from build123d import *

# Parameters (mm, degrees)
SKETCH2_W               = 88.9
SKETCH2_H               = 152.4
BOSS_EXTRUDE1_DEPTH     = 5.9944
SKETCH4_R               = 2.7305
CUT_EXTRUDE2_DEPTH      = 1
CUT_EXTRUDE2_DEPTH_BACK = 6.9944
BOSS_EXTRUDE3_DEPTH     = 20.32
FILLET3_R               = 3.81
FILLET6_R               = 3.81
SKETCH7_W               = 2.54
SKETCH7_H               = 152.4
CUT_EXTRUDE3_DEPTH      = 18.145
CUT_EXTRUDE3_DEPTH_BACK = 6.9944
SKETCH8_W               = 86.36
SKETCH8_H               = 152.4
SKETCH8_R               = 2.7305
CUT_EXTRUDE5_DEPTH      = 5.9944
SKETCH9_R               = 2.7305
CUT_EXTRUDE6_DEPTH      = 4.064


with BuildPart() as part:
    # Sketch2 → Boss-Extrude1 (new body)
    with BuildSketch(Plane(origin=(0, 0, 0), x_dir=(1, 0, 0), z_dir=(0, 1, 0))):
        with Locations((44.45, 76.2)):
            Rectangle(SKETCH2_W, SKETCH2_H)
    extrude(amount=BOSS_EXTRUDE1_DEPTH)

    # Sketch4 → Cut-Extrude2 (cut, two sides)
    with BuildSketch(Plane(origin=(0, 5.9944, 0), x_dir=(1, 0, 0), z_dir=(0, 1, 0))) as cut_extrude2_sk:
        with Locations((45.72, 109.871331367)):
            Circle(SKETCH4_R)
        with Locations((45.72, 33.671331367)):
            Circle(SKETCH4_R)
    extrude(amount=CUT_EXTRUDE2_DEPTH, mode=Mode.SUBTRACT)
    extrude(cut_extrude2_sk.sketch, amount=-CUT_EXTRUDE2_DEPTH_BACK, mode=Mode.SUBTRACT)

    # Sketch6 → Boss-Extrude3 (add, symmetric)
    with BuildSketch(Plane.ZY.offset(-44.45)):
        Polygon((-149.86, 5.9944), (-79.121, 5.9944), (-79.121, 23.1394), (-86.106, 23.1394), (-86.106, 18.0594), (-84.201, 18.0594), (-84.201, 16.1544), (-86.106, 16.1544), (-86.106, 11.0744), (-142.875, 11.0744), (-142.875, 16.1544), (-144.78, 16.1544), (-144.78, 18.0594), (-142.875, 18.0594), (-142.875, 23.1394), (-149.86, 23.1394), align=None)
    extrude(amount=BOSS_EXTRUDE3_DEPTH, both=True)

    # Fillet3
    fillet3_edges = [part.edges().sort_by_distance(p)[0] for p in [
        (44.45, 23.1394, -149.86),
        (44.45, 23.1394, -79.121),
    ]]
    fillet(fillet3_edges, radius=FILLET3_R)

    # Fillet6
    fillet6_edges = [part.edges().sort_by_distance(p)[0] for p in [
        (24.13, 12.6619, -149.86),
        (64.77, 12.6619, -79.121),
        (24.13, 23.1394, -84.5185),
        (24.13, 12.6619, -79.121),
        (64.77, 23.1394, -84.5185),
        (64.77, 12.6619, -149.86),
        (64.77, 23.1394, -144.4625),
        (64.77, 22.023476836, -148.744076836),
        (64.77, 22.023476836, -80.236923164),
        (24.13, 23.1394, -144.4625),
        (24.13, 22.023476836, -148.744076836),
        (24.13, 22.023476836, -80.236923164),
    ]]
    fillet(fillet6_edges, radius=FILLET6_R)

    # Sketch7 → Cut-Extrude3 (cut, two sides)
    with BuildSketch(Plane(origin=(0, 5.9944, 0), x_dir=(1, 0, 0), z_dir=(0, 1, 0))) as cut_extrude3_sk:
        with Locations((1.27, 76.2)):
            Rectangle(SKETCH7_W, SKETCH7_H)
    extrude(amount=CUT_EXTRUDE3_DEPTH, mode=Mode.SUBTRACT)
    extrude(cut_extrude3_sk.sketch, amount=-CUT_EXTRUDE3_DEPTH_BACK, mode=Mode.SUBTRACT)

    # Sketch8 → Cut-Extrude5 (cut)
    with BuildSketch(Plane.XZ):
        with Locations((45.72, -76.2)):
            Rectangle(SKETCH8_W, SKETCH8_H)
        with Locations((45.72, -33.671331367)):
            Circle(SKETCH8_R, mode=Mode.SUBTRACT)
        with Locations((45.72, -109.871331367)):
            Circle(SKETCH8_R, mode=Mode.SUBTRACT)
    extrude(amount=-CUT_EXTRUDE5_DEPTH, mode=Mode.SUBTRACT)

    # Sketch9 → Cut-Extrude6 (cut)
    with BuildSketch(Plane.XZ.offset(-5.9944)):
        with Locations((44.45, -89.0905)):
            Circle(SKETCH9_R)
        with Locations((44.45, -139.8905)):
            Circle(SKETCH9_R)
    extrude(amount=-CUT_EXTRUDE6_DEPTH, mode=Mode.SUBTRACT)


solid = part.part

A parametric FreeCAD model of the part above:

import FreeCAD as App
import Part
import Sketcher
from FreeCAD import Vector
Q = App.Units.Quantity


def edges_at(feature, points):
    """Names of the edges that pass closest to the given points."""
    edges = feature.Shape.Edges
    near = lambda p: min(range(len(edges)), key=lambda i: edges[i].distToShape(Part.Vertex(*p))[0])
    return sorted({f"Edge{near(p) + 1}" for p in points})


def add_polygon(sketch, points):
    """Adds a closed chain of lines whose ends are joined by coincident constraints."""
    first, n = sketch.GeometryCount, len(points)
    for a, b in zip(points, points[1:] + points[:1]):
        sketch.addGeometry(Part.LineSegment(App.Vector(*a, 0), App.Vector(*b, 0)), False)
    for i in range(n):
        sketch.addConstraint(Sketcher.Constraint("Coincident", first + i, 2, first + (i + 1) % n, 1))

doc = App.newDocument("Part")
params = doc.addObject("Spreadsheet::Sheet", "Params")
for row, (alias, value) in enumerate([
    ("sketch1_height", "6 in"),
    ("sketch1_width", "3.5 in"),
    ("pad1_length", "0.236 in"),
    ("sketch2_diameter", "0.215 in"),
    ("sketch3_width", "0.2 in"),
    ("sketch3_width2", "0.675 in"),
    ("sketch3_height", "2.785 in"),
    ("pad2_length", "1.6 in"),
    ("fillet_radius", "0.15 in"),
    ("fillet2_radius", "0.15 in"),
    ("sketch4_height", "6 in"),
    ("sketch4_width", "0.1 in"),
    ("sketch5_height", "6 in"),
    ("sketch5_diameter", "0.215 in"),
    ("sketch5_width", "3.4 in"),
    ("pocket3_length", "0.236 in"),
    ("sketch6_diameter", "0.215 in"),
    ("pocket4_length", "0.16 in"),
], start=1):
    params.set(f"A{row}", alias)
    params.set(f"B{row}", "=" + value)
    params.setAlias(f"B{row}", alias)

body = doc.addObject("PartDesign::Body", "Body")

# Sketch on XZ plane
sketch1 = body.newObject("Sketcher::SketchObject", "Sketch")
sketch1.AttachmentSupport = (doc.getObject("XZ_Plane"), [""])
sketch1.MapMode = "FlatFace"
add_polygon(sketch1, [(0, -152), (0, 0), (89, 0), (89, -152)])  # lines 0-3
sketch1.addConstraint(Sketcher.Constraint("Vertical", 0))
sketch1.addConstraint(Sketcher.Constraint("Horizontal", 1))
sketch1.addConstraint(Sketcher.Constraint("Vertical", 2))
sketch1.addConstraint(Sketcher.Constraint("Horizontal", 3))
sketch1.addConstraint(Sketcher.Constraint("Coincident", 0, 2, -1, 1))
sketch1.addConstraint(Sketcher.Constraint("DistanceY", 0, 1, 0, 2, Q("6 in")))
sketch1.addConstraint(Sketcher.Constraint("DistanceX", 1, 1, 1, 2, Q("3.5 in")))
sketch1.setExpression("Constraints[9]", "Params.sketch1_height")
sketch1.setExpression("Constraints[10]", "Params.sketch1_width")
pad1 = body.newObject("PartDesign::Pad", "Pad")
pad1.Profile = sketch1
pad1.setExpression("Length", "Params.pad1_length")
pad1.Reversed = True

# Sketch on XZ plane
sketch2 = body.newObject("Sketcher::SketchObject", "Sketch001")
sketch2.AttachmentSupport = (doc.getObject("XZ_Plane"), [""])
sketch2.MapMode = "FlatFace"
sketch2.AttachmentOffset = App.Placement(Vector(0, 0, -0.236 * 25.4), App.Rotation())
sketch2.addGeometry(Part.Circle(Vector(45.7, -109.9, 0), Vector(0, 0, 1), 2.7), False)
sketch2.addGeometry(Part.Circle(Vector(45.7, -33.7, 0), Vector(0, 0, 1), 2.7), False)
sketch2.addConstraint(Sketcher.Constraint("Equal", 0, 1))
sketch2.addConstraint(Sketcher.Constraint("Vertical", 0, 3, 1, 3))
sketch2.addConstraint(Sketcher.Constraint("Diameter", 0, Q("0.215 in")))
sketch2.addConstraint(Sketcher.Constraint("DistanceY", 0, 3, 1, 3, Q("3 in")))
sketch2.addConstraint(Sketcher.Constraint("DistanceX", -1, 1, 0, 3, Q("1.8 in")))
sketch2.addConstraint(Sketcher.Constraint("DistanceY", 0, 3, -1, 1, 109.871331))
sketch2.setExpression("Constraints[2]", "Params.sketch2_diameter")
pocket1 = body.newObject("PartDesign::Pocket", "Pocket")
pocket1.Profile = sketch2
pocket1.Type = "ThroughAll"
pocket1.Midplane = True

# Sketch on YZ plane
sketch3 = body.newObject("Sketcher::SketchObject", "Sketch002")
sketch3.AttachmentSupport = (doc.getObject("YZ_Plane"), [""])
sketch3.MapMode = "FlatFace"
sketch3.AttachmentOffset = App.Placement(Vector(0, 0, 1.75 * 25.4), App.Rotation())
add_polygon(sketch3, [(6, -149.9), (6, -79.1), (23.1, -79.1), (23.1, -86.1), (18.1, -86.1), (18.1, -84.2), (16.2, -84.2), (16.2, -86.1), (11.1, -86.1), (11.1, -142.9), (16.2, -142.9), (16.2, -144.8), (18.1, -144.8), (18.1, -142.9), (23.1, -142.9), (23.1, -149.9)])  # lines 0-15
sketch3.addConstraint(Sketcher.Constraint("Vertical", 0))
sketch3.addConstraint(Sketcher.Constraint("Horizontal", 1))
sketch3.addConstraint(Sketcher.Constraint("Vertical", 2))
sketch3.addConstraint(Sketcher.Constraint("Horizontal", 3))
sketch3.addConstraint(Sketcher.Constraint("Vertical", 4))
sketch3.addConstraint(Sketcher.Constraint("Horizontal", 5))
sketch3.addConstraint(Sketcher.Constraint("Vertical", 6))
sketch3.addConstraint(Sketcher.Constraint("Horizontal", 7))
sketch3.addConstraint(Sketcher.Constraint("Vertical", 8))
sketch3.addConstraint(Sketcher.Constraint("Horizontal", 9))
sketch3.addConstraint(Sketcher.Constraint("Vertical", 10))
sketch3.addConstraint(Sketcher.Constraint("Horizontal", 11))
sketch3.addConstraint(Sketcher.Constraint("Vertical", 12))
sketch3.addConstraint(Sketcher.Constraint("Horizontal", 13))
sketch3.addConstraint(Sketcher.Constraint("Vertical", 14))
sketch3.addConstraint(Sketcher.Constraint("Horizontal", 15))
sketch3.addConstraint(Sketcher.Constraint("Horizontal", 3, 2, 6, 2))
sketch3.addConstraint(Sketcher.Constraint("Horizontal", 9, 2, 12, 2))
sketch3.addConstraint(Sketcher.Constraint("Vertical", 6, 2, 9, 2))
sketch3.addConstraint(Sketcher.Constraint("Vertical", 4, 2, 11, 2))
sketch3.addConstraint(Sketcher.Constraint("Vertical", 2, 2, 13, 2))
sketch3.addConstraint(Sketcher.Constraint("Equal", 3, 7))
sketch3.addConstraint(Sketcher.Constraint("Equal", 11, 4))
sketch3.addConstraint(Sketcher.Constraint("Equal", 6, 10))
sketch3.addConstraint(Sketcher.Constraint("Equal", 2, 14))
sketch3.addConstraint(Sketcher.Constraint("DistanceX", 3, 2, 3, 1, Q("0.2 in")))
sketch3.addConstraint(Sketcher.Constraint("DistanceY", 10, 2, -1, 1, Q("5.7 in")))
sketch3.addConstraint(Sketcher.Constraint("DistanceY", 14, 2, -1, 1, Q("5.9 in")))
sketch3.addConstraint(Sketcher.Constraint("DistanceX", 0, 2, 5, 2, Q("0.4 in")))
sketch3.addConstraint(Sketcher.Constraint("DistanceX", 1, 1, 1, 2, Q("0.675 in")))
sketch3.addConstraint(Sketcher.Constraint("DistanceY", 0, 1, 0, 2, Q("2.785 in")))
sketch3.addConstraint(Sketcher.Constraint("DistanceX", -1, 1, 0, 2, Q("0.236 in")))
sketch3.setExpression("Constraints[41]", "Params.sketch3_width")
sketch3.setExpression("Constraints[45]", "Params.sketch3_width2")
sketch3.setExpression("Constraints[46]", "Params.sketch3_height")
pad2 = body.newObject("PartDesign::Pad", "Pad001")
pad2.Profile = sketch3
pad2.setExpression("Length", "Params.pad2_length")
pad2.Midplane = True
doc.recompute()

fillet = body.newObject("PartDesign::Fillet", "Fillet")
fillet.Base = (pad2, edges_at(pad2, [(44.45, 23.139, -149.86), (44.45, 23.139, -79.121)]))
fillet.setExpression("Radius", "Params.fillet_radius")
doc.recompute()

fillet2 = body.newObject("PartDesign::Fillet", "Fillet001")
fillet2.Base = (fillet, edges_at(fillet, [
    (24.13, 12.662, -149.86),
    (64.77, 12.662, -79.121),
    (24.13, 23.139, -84.519),
    (24.13, 12.662, -79.121),
    (64.77, 23.139, -84.519),
    (64.77, 12.662, -149.86),
    (64.77, 23.139, -144.463),
    (64.77, 22.023, -148.744),
    (64.77, 22.023, -80.237),
    (24.13, 23.139, -144.463),
    (24.13, 22.023, -148.744),
    (24.13, 22.023, -80.237),
]))
fillet2.setExpression("Radius", "Params.fillet2_radius")

# Sketch on XZ plane
sketch4 = body.newObject("Sketcher::SketchObject", "Sketch003")
sketch4.AttachmentSupport = (doc.getObject("XZ_Plane"), [""])
sketch4.MapMode = "FlatFace"
sketch4.AttachmentOffset = App.Placement(Vector(0, 0, -0.236 * 25.4), App.Rotation())
add_polygon(sketch4, [(0, -152.4), (0, 0), (2.5, 0), (2.5, -152.4)])  # lines 0-3
sketch4.addConstraint(Sketcher.Constraint("Vertical", 0))
sketch4.addConstraint(Sketcher.Constraint("Horizontal", 1))
sketch4.addConstraint(Sketcher.Constraint("Vertical", 2))
sketch4.addConstraint(Sketcher.Constraint("Horizontal", 3))
sketch4.addConstraint(Sketcher.Constraint("Coincident", 0, 2, -1, 1))
sketch4.addConstraint(Sketcher.Constraint("DistanceY", 0, 1, 0, 2, Q("6 in")))
sketch4.addConstraint(Sketcher.Constraint("DistanceX", 1, 1, 1, 2, Q("0.1 in")))
sketch4.setExpression("Constraints[9]", "Params.sketch4_height")
sketch4.setExpression("Constraints[10]", "Params.sketch4_width")
pocket2 = body.newObject("PartDesign::Pocket", "Pocket001")
pocket2.Profile = sketch4
pocket2.Type = "ThroughAll"
pocket2.Midplane = True

# Sketch on XZ plane
sketch5 = body.newObject("Sketcher::SketchObject", "Sketch004")
sketch5.AttachmentSupport = (doc.getObject("XZ_Plane"), [""])
sketch5.MapMode = "FlatFace"
add_polygon(sketch5, [(2.5, 0), (2.5, -152.4), (88.9, -152.4), (88.9, 0)])  # lines 0-3
sketch5.addGeometry(Part.Circle(Vector(45.7, -109.9, 0), Vector(0, 0, 1), 2.7), False)  # 4
sketch5.addGeometry(Part.Circle(Vector(45.7, -33.7, 0), Vector(0, 0, 1), 2.7), False)  # 5
sketch5.addConstraint(Sketcher.Constraint("Vertical", 0))
sketch5.addConstraint(Sketcher.Constraint("Horizontal", 1))
sketch5.addConstraint(Sketcher.Constraint("Vertical", 2))
sketch5.addConstraint(Sketcher.Constraint("Horizontal", 3))
sketch5.addConstraint(Sketcher.Constraint("Equal", 4, 5))
sketch5.addConstraint(Sketcher.Constraint("PointOnObject", 2, 2, -1))
sketch5.addConstraint(Sketcher.Constraint("Vertical", 4, 3, 5, 3))
sketch5.addConstraint(Sketcher.Constraint("DistanceY", 0, 2, 0, 1, Q("6 in")))
sketch5.addConstraint(Sketcher.Constraint("Diameter", 4, Q("0.215 in")))
sketch5.addConstraint(Sketcher.Constraint("DistanceX", 1, 1, 1, 2, Q("3.4 in")))
sketch5.addConstraint(Sketcher.Constraint("DistanceY", 4, 3, 5, 3, Q("3 in")))
sketch5.addConstraint(Sketcher.Constraint("DistanceX", -1, 1, 4, 3, Q("1.8 in")))
sketch5.addConstraint(Sketcher.Constraint("DistanceX", -1, 1, 0, 2, Q("0.1 in")))
sketch5.addConstraint(Sketcher.Constraint("DistanceY", 4, 3, -1, 1, 109.871331))
sketch5.setExpression("Constraints[11]", "Params.sketch5_height")
sketch5.setExpression("Constraints[12]", "Params.sketch5_diameter")
sketch5.setExpression("Constraints[13]", "Params.sketch5_width")
pocket3 = body.newObject("PartDesign::Pocket", "Pocket002")
pocket3.Profile = sketch5
pocket3.setExpression("Length", "Params.pocket3_length")

# Sketch on XZ plane
sketch6 = body.newObject("Sketcher::SketchObject", "Sketch005")
sketch6.AttachmentSupport = (doc.getObject("XZ_Plane"), [""])
sketch6.MapMode = "FlatFace"
sketch6.AttachmentOffset = App.Placement(Vector(0, 0, -0.236 * 25.4), App.Rotation())
sketch6.addGeometry(Part.Circle(Vector(44.5, -89.1, 0), Vector(0, 0, 1), 2.7), False)
sketch6.addGeometry(Part.Circle(Vector(44.5, -139.9, 0), Vector(0, 0, 1), 2.7), False)
sketch6.addConstraint(Sketcher.Constraint("Equal", 0, 1))
sketch6.addConstraint(Sketcher.Constraint("Vertical", 0, 3, 1, 3))
sketch6.addConstraint(Sketcher.Constraint("Diameter", 0, Q("0.215 in")))
sketch6.addConstraint(Sketcher.Constraint("DistanceY", 1, 3, 0, 3, Q("2 in")))
sketch6.addConstraint(Sketcher.Constraint("DistanceX", -1, 1, 0, 3, Q("1.75 in")))
sketch6.addConstraint(Sketcher.Constraint("DistanceY", 0, 3, -1, 1, Q("3.5075 in")))
sketch6.setExpression("Constraints[2]", "Params.sketch6_diameter")
pocket4 = body.newObject("PartDesign::Pocket", "Pocket003")
pocket4.Profile = sketch6
pocket4.setExpression("Length", "Params.pocket4_length")

doc.recompute()
